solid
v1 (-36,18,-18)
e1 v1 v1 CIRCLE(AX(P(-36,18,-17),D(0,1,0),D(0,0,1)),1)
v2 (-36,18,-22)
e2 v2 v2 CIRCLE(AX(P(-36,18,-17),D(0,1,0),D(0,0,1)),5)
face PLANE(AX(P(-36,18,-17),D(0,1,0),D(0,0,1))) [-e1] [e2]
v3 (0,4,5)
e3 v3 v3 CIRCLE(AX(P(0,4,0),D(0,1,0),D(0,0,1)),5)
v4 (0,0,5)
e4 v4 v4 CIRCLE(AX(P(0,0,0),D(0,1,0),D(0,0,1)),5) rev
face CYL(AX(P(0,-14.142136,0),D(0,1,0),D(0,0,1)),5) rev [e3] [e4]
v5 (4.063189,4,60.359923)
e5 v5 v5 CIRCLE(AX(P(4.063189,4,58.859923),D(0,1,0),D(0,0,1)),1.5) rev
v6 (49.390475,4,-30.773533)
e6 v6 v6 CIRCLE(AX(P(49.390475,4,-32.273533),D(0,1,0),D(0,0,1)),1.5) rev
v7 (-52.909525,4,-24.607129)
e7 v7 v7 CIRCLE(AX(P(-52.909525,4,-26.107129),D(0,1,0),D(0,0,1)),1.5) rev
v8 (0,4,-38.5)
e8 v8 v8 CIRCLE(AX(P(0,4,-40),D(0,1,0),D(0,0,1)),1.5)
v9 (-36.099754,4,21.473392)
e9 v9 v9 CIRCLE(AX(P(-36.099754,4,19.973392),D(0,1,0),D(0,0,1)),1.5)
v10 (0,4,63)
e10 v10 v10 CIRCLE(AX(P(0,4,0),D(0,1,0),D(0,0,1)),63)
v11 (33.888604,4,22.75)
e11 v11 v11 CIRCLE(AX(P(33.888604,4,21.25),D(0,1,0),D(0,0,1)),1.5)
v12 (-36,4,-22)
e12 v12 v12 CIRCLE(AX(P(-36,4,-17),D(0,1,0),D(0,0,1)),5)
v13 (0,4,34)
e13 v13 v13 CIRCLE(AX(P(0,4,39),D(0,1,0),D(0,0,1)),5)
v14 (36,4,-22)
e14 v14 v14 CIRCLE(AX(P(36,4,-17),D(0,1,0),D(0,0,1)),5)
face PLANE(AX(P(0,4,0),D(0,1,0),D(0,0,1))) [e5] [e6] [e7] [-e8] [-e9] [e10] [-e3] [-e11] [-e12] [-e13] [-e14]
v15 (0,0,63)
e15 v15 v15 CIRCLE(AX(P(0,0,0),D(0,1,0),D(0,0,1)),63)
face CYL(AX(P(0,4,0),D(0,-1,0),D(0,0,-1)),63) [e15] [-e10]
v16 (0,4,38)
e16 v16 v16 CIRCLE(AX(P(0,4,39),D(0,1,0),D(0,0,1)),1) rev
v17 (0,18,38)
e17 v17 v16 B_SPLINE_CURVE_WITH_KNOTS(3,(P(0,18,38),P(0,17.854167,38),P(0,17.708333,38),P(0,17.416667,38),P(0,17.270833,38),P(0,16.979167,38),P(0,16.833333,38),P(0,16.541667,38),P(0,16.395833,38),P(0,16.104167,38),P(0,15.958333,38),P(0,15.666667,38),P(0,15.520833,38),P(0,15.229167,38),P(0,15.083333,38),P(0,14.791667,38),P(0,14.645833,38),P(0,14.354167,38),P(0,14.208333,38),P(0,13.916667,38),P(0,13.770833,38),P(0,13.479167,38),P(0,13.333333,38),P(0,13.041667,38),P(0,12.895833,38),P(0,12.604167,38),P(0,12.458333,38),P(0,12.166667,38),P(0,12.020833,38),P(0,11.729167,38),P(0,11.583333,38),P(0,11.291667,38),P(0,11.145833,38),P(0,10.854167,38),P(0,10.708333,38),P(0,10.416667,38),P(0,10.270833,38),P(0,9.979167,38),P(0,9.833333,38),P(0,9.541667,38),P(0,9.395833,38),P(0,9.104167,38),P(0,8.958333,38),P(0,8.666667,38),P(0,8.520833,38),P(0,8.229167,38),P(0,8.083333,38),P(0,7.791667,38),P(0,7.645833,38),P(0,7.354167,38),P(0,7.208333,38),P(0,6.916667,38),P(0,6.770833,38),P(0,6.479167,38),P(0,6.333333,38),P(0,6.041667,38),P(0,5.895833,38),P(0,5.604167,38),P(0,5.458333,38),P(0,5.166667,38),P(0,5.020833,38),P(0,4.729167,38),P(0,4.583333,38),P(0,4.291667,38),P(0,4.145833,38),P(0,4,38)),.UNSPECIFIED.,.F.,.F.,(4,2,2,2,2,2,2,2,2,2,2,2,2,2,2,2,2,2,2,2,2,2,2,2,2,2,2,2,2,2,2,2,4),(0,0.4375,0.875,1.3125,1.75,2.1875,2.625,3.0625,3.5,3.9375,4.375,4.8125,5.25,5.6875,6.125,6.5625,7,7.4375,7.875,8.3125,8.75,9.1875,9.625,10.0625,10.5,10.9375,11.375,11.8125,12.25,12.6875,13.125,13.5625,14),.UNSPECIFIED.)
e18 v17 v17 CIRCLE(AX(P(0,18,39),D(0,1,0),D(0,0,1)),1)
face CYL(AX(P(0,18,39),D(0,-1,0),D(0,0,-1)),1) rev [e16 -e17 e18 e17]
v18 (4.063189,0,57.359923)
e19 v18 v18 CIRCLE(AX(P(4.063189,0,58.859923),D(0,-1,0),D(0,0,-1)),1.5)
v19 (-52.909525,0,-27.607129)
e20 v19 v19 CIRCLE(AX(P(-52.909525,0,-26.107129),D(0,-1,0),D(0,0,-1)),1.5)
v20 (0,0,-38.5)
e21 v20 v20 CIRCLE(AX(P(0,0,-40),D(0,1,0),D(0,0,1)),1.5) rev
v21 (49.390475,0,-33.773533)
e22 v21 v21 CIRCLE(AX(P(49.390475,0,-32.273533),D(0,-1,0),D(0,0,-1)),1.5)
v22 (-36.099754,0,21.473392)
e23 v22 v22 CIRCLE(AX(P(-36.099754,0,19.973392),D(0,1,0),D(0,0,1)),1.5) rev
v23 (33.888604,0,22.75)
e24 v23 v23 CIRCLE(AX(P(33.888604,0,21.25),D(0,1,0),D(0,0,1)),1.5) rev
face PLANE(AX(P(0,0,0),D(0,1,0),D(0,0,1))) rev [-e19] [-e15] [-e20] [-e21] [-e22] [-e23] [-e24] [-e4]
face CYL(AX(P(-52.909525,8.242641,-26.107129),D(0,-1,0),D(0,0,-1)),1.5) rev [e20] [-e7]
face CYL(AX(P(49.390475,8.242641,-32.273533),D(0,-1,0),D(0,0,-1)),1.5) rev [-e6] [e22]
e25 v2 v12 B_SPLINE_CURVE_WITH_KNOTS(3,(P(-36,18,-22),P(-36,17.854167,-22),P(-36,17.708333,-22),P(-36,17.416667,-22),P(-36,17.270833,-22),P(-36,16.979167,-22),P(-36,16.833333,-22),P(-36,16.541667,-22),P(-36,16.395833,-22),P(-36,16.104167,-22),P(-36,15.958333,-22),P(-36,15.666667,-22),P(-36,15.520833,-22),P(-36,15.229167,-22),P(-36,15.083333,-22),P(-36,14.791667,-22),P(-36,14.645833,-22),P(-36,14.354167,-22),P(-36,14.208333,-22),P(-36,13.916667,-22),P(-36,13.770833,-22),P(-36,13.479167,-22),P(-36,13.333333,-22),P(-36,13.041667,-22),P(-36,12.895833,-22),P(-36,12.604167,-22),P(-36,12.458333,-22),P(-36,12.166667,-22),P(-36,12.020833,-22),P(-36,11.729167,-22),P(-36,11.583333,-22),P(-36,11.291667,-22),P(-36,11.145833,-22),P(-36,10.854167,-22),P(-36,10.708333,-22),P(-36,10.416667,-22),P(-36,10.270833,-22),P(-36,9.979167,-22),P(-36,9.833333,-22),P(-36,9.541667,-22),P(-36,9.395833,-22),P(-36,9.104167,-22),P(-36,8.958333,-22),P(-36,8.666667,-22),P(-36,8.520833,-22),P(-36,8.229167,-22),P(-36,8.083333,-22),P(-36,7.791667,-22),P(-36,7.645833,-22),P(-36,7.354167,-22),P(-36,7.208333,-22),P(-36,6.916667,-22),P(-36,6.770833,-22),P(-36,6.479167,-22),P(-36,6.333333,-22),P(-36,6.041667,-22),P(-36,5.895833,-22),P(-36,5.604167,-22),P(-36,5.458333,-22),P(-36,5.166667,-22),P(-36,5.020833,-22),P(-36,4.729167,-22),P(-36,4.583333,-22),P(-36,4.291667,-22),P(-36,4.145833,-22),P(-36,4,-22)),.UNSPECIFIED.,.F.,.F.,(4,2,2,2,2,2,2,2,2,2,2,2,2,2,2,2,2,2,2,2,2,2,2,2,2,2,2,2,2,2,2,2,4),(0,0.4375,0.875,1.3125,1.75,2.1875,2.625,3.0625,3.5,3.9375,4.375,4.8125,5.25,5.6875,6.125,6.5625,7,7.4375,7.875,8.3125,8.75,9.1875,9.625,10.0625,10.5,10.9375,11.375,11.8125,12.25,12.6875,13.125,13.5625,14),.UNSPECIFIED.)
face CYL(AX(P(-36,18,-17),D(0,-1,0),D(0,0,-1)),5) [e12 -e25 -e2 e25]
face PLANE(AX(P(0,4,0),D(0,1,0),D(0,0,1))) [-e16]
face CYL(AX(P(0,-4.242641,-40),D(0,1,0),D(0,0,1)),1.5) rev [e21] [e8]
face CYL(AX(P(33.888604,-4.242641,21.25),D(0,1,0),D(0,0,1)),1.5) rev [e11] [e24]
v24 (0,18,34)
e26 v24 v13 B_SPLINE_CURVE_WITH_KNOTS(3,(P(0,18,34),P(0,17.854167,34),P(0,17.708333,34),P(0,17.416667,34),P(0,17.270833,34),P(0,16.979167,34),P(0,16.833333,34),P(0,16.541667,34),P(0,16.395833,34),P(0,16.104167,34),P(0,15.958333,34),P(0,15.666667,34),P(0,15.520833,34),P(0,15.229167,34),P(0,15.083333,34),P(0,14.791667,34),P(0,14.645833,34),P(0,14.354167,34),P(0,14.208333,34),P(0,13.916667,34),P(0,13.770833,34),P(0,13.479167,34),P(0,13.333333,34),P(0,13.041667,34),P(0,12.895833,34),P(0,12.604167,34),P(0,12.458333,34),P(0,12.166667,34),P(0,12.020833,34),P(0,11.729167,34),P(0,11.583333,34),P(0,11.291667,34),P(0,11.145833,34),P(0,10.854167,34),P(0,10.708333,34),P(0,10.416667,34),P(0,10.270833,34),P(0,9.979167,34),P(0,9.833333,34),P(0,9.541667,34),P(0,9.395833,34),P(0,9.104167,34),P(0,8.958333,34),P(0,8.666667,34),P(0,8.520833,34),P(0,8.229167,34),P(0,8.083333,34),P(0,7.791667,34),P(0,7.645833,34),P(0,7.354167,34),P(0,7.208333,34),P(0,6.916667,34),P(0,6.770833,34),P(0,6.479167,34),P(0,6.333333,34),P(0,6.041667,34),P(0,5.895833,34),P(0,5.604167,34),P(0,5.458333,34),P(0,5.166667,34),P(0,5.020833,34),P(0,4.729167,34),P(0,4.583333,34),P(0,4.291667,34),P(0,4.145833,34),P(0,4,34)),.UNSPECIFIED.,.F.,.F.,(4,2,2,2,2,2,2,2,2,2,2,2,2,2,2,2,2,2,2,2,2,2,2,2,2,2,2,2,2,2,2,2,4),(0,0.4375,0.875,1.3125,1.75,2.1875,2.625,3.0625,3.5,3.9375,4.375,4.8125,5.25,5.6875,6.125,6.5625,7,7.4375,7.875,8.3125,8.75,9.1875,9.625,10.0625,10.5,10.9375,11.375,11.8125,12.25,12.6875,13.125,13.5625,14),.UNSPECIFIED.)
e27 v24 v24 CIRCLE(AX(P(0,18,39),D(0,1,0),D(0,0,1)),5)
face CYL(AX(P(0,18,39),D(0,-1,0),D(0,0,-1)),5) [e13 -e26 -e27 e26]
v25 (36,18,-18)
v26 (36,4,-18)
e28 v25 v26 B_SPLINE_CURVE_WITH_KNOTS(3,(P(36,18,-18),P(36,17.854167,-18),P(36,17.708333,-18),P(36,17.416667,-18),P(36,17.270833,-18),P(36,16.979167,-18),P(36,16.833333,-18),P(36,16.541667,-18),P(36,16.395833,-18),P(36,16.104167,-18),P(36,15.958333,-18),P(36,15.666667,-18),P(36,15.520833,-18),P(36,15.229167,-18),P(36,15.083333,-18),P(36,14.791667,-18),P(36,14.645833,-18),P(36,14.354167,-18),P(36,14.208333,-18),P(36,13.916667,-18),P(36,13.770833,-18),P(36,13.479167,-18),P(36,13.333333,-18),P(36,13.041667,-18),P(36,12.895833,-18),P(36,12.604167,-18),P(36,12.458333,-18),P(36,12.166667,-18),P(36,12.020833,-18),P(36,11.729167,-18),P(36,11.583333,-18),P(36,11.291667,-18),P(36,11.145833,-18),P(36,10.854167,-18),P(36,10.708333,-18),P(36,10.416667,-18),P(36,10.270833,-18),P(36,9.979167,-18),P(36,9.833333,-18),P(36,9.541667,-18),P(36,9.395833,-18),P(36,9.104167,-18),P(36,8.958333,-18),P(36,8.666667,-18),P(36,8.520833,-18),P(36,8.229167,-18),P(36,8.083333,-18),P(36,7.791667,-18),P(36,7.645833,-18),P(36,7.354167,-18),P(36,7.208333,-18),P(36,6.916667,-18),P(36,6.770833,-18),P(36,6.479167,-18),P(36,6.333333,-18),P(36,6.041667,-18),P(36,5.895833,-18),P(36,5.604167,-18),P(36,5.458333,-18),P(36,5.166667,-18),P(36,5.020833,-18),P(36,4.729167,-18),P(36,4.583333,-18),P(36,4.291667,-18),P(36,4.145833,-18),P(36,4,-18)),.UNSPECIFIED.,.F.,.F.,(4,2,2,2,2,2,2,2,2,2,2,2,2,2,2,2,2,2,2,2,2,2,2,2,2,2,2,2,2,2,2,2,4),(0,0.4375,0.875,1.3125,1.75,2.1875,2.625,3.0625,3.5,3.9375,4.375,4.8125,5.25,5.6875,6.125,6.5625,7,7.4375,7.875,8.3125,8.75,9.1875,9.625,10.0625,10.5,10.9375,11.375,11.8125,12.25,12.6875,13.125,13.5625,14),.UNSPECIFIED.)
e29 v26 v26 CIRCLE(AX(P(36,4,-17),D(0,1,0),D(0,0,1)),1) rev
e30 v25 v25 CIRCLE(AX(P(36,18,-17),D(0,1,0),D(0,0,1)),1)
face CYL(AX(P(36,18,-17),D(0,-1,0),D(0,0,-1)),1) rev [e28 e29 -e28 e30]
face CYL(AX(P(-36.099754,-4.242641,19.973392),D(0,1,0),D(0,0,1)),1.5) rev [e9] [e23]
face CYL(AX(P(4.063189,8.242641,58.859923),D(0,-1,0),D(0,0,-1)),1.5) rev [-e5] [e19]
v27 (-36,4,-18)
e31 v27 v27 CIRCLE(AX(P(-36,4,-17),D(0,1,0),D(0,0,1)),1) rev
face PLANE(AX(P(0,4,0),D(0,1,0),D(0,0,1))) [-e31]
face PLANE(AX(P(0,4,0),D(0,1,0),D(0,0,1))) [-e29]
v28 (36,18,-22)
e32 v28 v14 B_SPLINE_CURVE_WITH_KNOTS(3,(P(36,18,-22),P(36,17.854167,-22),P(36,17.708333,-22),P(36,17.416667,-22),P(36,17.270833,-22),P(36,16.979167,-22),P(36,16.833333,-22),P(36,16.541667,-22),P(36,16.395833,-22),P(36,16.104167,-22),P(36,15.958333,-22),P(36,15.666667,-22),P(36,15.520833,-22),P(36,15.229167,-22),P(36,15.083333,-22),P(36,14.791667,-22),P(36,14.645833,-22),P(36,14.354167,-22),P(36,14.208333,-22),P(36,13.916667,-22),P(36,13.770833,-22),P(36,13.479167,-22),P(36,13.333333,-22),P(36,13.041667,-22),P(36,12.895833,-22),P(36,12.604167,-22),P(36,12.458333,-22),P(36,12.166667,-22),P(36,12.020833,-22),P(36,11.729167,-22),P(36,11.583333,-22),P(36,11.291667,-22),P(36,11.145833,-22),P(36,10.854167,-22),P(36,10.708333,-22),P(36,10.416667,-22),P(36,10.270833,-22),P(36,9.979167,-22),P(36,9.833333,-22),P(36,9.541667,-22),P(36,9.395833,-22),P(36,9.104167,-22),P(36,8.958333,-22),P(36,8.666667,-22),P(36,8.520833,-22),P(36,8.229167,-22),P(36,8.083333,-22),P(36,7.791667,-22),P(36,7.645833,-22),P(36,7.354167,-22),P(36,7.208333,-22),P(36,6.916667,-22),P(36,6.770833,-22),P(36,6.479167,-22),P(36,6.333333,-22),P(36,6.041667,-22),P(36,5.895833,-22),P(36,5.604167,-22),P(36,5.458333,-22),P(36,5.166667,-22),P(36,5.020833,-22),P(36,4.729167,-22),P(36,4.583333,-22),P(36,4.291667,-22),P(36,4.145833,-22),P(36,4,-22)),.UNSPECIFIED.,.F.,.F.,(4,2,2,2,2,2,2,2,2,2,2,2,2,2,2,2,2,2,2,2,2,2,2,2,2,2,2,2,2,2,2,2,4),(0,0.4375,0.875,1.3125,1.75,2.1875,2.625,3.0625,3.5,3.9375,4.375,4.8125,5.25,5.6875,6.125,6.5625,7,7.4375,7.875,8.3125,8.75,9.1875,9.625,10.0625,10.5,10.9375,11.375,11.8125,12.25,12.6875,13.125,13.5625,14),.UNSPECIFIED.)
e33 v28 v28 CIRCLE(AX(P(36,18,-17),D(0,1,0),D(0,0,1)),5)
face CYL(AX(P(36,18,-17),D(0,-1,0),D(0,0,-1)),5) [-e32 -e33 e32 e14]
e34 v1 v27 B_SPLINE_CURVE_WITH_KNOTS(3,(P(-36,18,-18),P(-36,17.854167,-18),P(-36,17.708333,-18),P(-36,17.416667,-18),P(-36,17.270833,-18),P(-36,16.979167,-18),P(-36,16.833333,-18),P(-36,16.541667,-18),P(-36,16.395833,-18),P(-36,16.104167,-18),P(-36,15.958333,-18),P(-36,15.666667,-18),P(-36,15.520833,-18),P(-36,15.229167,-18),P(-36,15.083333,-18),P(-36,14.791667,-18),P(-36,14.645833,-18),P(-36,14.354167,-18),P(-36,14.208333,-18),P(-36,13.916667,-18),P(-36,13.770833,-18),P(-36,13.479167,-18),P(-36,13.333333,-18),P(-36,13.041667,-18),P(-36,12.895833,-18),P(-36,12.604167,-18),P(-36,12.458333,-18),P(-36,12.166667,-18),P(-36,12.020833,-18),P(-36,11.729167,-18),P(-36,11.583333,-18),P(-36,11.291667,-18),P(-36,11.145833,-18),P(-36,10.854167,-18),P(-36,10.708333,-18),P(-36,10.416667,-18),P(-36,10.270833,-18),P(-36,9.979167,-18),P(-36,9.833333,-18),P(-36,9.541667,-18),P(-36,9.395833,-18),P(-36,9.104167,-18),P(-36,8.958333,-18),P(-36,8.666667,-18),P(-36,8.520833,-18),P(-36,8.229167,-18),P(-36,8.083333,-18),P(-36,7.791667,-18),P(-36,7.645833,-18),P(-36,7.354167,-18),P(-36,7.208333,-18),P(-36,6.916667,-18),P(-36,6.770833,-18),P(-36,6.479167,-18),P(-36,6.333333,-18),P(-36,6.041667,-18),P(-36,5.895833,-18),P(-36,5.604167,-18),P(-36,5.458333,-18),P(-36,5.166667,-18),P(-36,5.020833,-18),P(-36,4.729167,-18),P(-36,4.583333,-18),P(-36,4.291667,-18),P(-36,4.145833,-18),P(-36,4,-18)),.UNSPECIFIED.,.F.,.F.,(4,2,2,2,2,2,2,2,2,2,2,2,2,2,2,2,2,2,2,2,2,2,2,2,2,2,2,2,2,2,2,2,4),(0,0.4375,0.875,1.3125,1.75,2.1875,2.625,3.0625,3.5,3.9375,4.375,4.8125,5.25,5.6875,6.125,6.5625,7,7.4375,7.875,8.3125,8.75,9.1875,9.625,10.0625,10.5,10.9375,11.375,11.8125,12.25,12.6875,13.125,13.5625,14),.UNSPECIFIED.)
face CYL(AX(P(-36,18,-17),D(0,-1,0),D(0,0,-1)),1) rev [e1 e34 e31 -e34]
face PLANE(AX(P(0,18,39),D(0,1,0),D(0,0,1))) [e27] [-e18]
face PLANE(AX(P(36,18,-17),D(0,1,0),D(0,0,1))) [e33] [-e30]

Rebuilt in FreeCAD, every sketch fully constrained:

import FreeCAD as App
import Part
import Sketcher

V = App.Vector

doc = App.newDocument("Part")
params = doc.addObject("Spreadsheet::Sheet", "Params")
for row, (alias, value) in enumerate([
    ("sketch1_diameter", "126 mm"),
    ("pad1_length", "4 mm"),
    ("sketch2_diameter", "10 mm"),
    ("pocket1_length", "4 mm"),
    ("sketch3_diameter", "10 mm"),
    ("sketch3_diameter2", "2 mm"),
    ("pad2_length", "14 mm"),
    ("sketch4_diameter", "3 mm"),
    ("pocket2_length", "4 mm"),
    ("sketch5_diameter", "3 mm"),
    ("pocket3_length", "4 mm"),
], start=1):
    params.set(f"A{row}", alias)
    params.set(f"B{row}", "=" + value)
    params.setAlias(f"B{row}", alias)

body = doc.addObject("PartDesign::Body", "Body")

sketch1 = body.newObject("Sketcher::SketchObject", "Sketch")
sketch1.AttachmentSupport = (doc.getObject("XZ_Plane"), [""])
sketch1.MapMode = "FlatFace"
sketch1.addGeometry(Part.Circle(V(0, 0, 0), V(0, 0, 1), 63), False)
sketch1.addConstraint(Sketcher.Constraint("Coincident", 0, 3, -1, 1))
sketch1.addConstraint(Sketcher.Constraint("Diameter", 0, 126.0))
sketch1.setExpression("Constraints[1]", "Params.sketch1_diameter")
pad1 = body.newObject("PartDesign::Pad", "Pad")
pad1.Profile = sketch1
pad1.setExpression("Length", "Params.pad1_length")
pad1.Reversed = True

sketch2 = body.newObject("Sketcher::SketchObject", "Sketch001")
sketch2.AttachmentSupport = (doc.getObject("XZ_Plane"), [""])
sketch2.MapMode = "FlatFace"
sketch2.AttachmentOffset = App.Placement(V(0, 0, -4), App.Rotation())
sketch2.addGeometry(Part.Circle(V(0, 0, 0), V(0, 0, 1), 5), False)
sketch2.addConstraint(Sketcher.Constraint("Coincident", 0, 3, -1, 1))
sketch2.addConstraint(Sketcher.Constraint("Diameter", 0, 10.0))
sketch2.setExpression("Constraints[1]", "Params.sketch2_diameter")
pocket1 = body.newObject("PartDesign::Pocket", "Pocket")
pocket1.Profile = sketch2
pocket1.setExpression("Length", "Params.pocket1_length")
pocket1.Reversed = True

sketch3 = body.newObject("Sketcher::SketchObject", "Sketch002")
sketch3.AttachmentSupport = (doc.getObject("XZ_Plane"), [""])
sketch3.MapMode = "FlatFace"
sketch3.AttachmentOffset = App.Placement(V(0, 0, -4), App.Rotation())
sketch3.addGeometry(Part.Circle(V(-36, -17, 0), V(0, 0, 1), 5), False)
sketch3.addGeometry(Part.Circle(V(-36, -17, 0), V(0, 0, 1), 1), False)
sketch3.addGeometry(Part.Circle(V(36, -17, 0), V(0, 0, 1), 5), False)
sketch3.addGeometry(Part.Circle(V(36, -17, 0), V(0, 0, 1), 1), False)
sketch3.addGeometry(Part.Circle(V(0, 39, 0), V(0, 0, 1), 5), False)
sketch3.addGeometry(Part.Circle(V(0, 39, 0), V(0, 0, 1), 1), False)
sketch3.addConstraint(Sketcher.Constraint("Coincident", 1, 3, 0, 3))
sketch3.addConstraint(Sketcher.Constraint("Coincident", 3, 3, 2, 3))
sketch3.addConstraint(Sketcher.Constraint("Coincident", 5, 3, 4, 3))
sketch3.addConstraint(Sketcher.Constraint("Equal", 0, 2))
sketch3.addConstraint(Sketcher.Constraint("Equal", 1, 3))
sketch3.addConstraint(Sketcher.Constraint("Equal", 2, 4))
sketch3.addConstraint(Sketcher.Constraint("Equal", 3, 5))
sketch3.addConstraint(Sketcher.Constraint("Symmetric", 0, 3, 2, 3, -2))
sketch3.addConstraint(Sketcher.Constraint("PointOnObject", 4, 3, -2))
sketch3.addConstraint(Sketcher.Constraint("Diameter", 0, 10.0))
sketch3.addConstraint(Sketcher.Constraint("Diameter", 1, 2.0))
sketch3.addConstraint(Sketcher.Constraint("DistanceX", 0, 3, -1, 1, 36.0))
sketch3.addConstraint(Sketcher.Constraint("DistanceY", 0, 3, -1, 1, 17.0))
sketch3.addConstraint(Sketcher.Constraint("DistanceY", -1, 1, 4, 3, 39.0))
sketch3.setExpression("Constraints[9]", "Params.sketch3_diameter")
sketch3.setExpression("Constraints[10]", "Params.sketch3_diameter2")
pad2 = body.newObject("PartDesign::Pad", "Pad001")
pad2.Profile = sketch3
pad2.setExpression("Length", "Params.pad2_length")
pad2.Reversed = True

sketch4 = body.newObject("Sketcher::SketchObject", "Sketch003")
sketch4.AttachmentSupport = (doc.getObject("XZ_Plane"), [""])
sketch4.MapMode = "FlatFace"
sketch4.AttachmentOffset = App.Placement(V(0, 0, -4), App.Rotation())
sketch4.addGeometry(Part.Circle(V(33.9, 21.2, 0), V(0, 0, 1), 1.5), False)
sketch4.addGeometry(Part.Circle(V(-36.1, 20, 0), V(0, 0, 1), 1.5), False)
sketch4.addGeometry(Part.Circle(V(0, -40, 0), V(0, 0, 1), 1.5), False)
sketch4.addConstraint(Sketcher.Constraint("Equal", 0, 1))
sketch4.addConstraint(Sketcher.Constraint("Equal", 1, 2))
sketch4.addConstraint(Sketcher.Constraint("PointOnObject", 2, 3, -2))
sketch4.addConstraint(Sketcher.Constraint("Diameter", 0, 3.0))
sketch4.addConstraint(Sketcher.Constraint("DistanceY", 2, 3, -1, 1, 40.0))
sketch4.addConstraint(Sketcher.Constraint("DistanceY", -1, 1, 0, 3, 21.25))
sketch4.addConstraint(Sketcher.Constraint("DistanceX", 1, 3, 0, 3, 69.988358))
sketch4.addConstraint(Sketcher.Constraint("DistanceX", -1, 1, 0, 3, 33.888604))
sketch4.addConstraint(Sketcher.Constraint("DistanceY", -1, 1, 1, 3, 19.973392))
sketch4.setExpression("Constraints[3]", "Params.sketch4_diameter")
pocket2 = body.newObject("PartDesign::Pocket", "Pocket001")
pocket2.Profile = sketch4
pocket2.setExpression("Length", "Params.pocket2_length")
pocket2.Reversed = True

sketch5 = body.newObject("Sketcher::SketchObject", "Sketch004")
sketch5.AttachmentSupport = (doc.getObject("XZ_Plane"), [""])
sketch5.MapMode = "FlatFace"
sketch5.addGeometry(Part.Circle(V(4.1, 58.9, 0), V(0, 0, 1), 1.5), False)
sketch5.addGeometry(Part.Circle(V(-52.9, -26.1, 0), V(0, 0, 1), 1.5), False)
sketch5.addGeometry(Part.Circle(V(49.4, -32.3, 0), V(0, 0, 1), 1.5), False)
sketch5.addConstraint(Sketcher.Constraint("Equal", 0, 1))
sketch5.addConstraint(Sketcher.Constraint("Equal", 1, 2))
sketch5.addConstraint(Sketcher.Constraint("Diameter", 0, 3.0))
sketch5.addConstraint(Sketcher.Constraint("DistanceX", 1, 3, 2, 3, 102.3))
sketch5.addConstraint(Sketcher.Constraint("DistanceX", -1, 1, 0, 3, 4.063189))
sketch5.addConstraint(Sketcher.Constraint("DistanceY", 1, 3, -1, 1, 26.107129))
sketch5.addConstraint(Sketcher.Constraint("DistanceY", 1, 3, 0, 3, 84.967052))
sketch5.addConstraint(Sketcher.Constraint("DistanceX", 1, 3, -1, 1, 52.909525))
sketch5.addConstraint(Sketcher.Constraint("DistanceY", 2, 3, -1, 1, 32.273533))
sketch5.setExpression("Constraints[2]", "Params.sketch5_diameter")
pocket3 = body.newObject("PartDesign::Pocket", "Pocket002")
pocket3.Profile = sketch5
pocket3.setExpression("Length", "Params.pocket3_length")

doc.recompute()
